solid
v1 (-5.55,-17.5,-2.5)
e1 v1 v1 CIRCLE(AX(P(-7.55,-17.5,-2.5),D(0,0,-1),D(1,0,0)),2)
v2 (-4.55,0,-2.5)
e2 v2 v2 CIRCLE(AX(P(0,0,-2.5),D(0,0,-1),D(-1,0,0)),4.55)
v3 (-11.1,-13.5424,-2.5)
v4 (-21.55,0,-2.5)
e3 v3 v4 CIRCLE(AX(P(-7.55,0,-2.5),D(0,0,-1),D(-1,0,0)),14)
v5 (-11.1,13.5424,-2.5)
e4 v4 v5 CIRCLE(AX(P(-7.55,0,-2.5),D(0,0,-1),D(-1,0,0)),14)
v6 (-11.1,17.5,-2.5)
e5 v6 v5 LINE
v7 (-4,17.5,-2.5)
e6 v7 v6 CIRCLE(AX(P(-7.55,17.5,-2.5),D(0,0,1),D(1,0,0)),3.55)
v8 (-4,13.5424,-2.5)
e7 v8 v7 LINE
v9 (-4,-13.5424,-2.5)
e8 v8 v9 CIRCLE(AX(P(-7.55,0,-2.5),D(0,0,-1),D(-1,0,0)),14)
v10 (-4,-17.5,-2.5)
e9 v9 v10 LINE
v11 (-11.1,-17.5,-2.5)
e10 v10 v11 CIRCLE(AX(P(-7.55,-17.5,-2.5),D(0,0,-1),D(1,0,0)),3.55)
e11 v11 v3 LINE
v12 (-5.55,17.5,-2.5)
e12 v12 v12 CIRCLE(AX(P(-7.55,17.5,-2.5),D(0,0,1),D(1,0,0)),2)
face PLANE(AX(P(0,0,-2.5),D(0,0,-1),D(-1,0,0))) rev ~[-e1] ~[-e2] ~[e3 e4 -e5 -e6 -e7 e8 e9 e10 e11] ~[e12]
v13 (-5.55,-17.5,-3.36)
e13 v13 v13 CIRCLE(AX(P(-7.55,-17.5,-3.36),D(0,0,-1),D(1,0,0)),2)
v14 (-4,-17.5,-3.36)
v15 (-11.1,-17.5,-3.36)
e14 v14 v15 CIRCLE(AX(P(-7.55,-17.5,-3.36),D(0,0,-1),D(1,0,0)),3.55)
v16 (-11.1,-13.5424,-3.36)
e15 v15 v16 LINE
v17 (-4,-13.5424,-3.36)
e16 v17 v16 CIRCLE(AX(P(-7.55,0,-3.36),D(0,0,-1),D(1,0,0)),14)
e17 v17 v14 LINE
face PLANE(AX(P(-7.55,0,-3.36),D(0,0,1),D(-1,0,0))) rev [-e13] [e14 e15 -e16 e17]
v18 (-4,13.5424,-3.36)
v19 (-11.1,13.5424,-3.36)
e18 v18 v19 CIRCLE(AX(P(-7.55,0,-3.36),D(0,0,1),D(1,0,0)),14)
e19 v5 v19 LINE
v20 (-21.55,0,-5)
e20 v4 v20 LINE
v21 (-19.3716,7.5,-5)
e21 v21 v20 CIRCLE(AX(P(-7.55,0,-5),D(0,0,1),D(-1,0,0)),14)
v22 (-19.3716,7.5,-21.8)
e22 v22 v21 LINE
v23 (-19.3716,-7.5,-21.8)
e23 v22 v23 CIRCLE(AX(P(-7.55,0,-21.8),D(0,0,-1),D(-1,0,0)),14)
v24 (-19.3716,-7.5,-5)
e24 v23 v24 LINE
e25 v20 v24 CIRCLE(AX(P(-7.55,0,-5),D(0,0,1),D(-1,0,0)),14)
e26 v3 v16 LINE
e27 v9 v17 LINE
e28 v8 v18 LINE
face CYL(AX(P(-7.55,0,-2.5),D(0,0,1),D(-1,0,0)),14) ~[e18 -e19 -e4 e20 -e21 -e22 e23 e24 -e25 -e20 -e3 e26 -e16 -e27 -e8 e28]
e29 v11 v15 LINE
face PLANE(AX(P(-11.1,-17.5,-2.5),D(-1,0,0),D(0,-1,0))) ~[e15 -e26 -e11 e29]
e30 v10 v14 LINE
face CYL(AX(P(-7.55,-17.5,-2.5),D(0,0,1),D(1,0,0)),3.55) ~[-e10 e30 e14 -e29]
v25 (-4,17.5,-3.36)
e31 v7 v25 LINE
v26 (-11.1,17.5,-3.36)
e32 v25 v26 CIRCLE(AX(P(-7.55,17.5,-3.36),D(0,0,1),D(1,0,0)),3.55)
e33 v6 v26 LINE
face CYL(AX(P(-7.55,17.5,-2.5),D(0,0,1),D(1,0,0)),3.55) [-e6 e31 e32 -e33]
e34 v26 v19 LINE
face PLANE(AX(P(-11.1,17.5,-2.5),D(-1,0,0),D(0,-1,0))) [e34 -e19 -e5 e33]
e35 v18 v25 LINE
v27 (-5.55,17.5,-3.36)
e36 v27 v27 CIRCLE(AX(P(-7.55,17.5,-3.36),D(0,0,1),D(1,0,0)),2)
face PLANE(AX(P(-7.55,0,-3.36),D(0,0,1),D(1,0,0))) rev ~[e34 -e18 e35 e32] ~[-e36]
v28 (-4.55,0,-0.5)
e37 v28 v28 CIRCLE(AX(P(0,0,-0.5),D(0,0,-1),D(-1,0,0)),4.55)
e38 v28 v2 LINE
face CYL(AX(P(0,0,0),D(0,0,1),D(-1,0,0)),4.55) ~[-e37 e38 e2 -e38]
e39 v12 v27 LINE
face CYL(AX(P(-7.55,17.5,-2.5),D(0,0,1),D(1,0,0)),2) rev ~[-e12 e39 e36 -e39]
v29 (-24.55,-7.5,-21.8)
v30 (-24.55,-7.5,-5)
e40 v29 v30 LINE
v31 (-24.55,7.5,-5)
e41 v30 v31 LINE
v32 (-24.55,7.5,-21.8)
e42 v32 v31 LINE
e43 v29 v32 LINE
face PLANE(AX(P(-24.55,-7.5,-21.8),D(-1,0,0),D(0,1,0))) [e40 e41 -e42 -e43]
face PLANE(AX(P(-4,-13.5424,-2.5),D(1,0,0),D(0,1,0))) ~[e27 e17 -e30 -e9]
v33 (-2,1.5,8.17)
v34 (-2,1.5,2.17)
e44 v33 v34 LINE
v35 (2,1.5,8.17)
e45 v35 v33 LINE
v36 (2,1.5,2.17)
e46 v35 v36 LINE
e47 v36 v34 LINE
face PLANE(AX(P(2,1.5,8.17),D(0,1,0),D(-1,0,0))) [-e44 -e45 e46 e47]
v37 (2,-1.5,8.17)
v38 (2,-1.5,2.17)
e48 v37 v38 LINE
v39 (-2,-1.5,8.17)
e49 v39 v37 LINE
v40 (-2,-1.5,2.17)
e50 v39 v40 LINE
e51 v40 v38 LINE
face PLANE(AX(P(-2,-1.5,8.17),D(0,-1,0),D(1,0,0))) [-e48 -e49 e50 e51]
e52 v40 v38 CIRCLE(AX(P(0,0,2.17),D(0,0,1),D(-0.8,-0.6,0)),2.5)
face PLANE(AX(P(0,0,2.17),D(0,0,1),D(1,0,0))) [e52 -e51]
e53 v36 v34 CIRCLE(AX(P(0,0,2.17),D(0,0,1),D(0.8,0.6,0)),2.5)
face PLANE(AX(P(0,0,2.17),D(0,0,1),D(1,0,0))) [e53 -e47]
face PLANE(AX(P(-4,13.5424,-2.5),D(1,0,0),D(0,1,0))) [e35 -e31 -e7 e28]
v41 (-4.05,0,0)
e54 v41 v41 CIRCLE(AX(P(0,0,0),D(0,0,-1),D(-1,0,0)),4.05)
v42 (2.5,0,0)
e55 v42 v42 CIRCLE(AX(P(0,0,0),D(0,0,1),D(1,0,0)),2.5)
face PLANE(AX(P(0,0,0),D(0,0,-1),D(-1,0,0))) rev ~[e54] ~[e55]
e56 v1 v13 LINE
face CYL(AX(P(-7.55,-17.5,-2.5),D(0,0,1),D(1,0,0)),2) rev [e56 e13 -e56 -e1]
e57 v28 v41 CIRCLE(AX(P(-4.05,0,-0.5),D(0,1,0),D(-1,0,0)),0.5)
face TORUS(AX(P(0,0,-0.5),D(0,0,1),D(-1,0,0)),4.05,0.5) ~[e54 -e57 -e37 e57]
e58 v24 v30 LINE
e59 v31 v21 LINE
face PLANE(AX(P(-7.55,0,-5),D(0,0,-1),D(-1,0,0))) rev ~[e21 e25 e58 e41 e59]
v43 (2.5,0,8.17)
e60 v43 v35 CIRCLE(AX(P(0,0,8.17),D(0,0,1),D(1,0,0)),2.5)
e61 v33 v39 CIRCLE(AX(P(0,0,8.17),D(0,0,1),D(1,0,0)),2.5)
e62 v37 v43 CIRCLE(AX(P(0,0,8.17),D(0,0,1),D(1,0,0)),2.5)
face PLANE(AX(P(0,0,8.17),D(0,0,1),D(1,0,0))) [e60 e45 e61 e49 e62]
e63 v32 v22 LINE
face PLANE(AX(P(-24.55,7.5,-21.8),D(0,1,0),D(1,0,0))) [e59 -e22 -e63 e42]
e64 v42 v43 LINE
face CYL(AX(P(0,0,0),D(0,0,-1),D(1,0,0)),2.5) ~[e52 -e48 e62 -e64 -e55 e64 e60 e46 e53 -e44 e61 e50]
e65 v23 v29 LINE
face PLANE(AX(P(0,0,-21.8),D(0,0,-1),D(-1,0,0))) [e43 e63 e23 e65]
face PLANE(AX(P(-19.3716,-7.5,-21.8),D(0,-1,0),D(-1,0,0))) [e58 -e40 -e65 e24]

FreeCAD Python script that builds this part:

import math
import FreeCAD as App
import Part
import Sketcher
Q = App.Units.Quantity


def edges_at(feature, points):
    """Names of the edges that pass closest to the given points."""
    edges = feature.Shape.Edges
    near = lambda p: min(range(len(edges)), key=lambda i: edges[i].distToShape(Part.Vertex(*p))[0])
    return sorted({f"Edge{near(p) + 1}" for p in points})


def add_polygon(sketch, points):
    """Adds a closed chain of lines whose ends are joined by coincident constraints."""
    first, n = sketch.GeometryCount, len(points)
    for a, b in zip(points, points[1:] + points[:1]):
        sketch.addGeometry(Part.LineSegment(App.Vector(*a, 0), App.Vector(*b, 0)), False)
    for i in range(n):
        sketch.addConstraint(Sketcher.Constraint("Coincident", first + i, 2, first + (i + 1) % n, 1))

doc = App.newDocument("Part")
body = doc.addObject("PartDesign::Body", "Body")

# Sketch on XY plane
sketch1 = doc.addObject("Sketcher::SketchObject", "Sketch")
body.addObject(sketch1)
sketch1.AttachmentSupport = (doc.XY_Plane, [""])
sketch1.MapMode = "FlatFace"
sketch1.addGeometry(Part.Circle(App.Vector(0, 0, 0), App.Vector(0, 0, 1), 2.5), False)
sketch1.addConstraint([
    Sketcher.Constraint("Coincident", 0, 3, -1, 1),
    Sketcher.Constraint("Diameter", 0, Q("5 mm")),
])
pad1 = doc.addObject("PartDesign::Pad", "Pad")
body.addObject(pad1)
pad1.Profile = sketch1
pad1.Length = 8.17

# Sketch on XY plane
sketch2 = doc.addObject("Sketcher::SketchObject", "Sketch001")
body.addObject(sketch2)
sketch2.AttachmentSupport = (doc.XY_Plane, [""])
sketch2.MapMode = "FlatFace"
sketch2.AttachmentOffset = App.Placement(App.Vector(0, 0, 8.17), App.Rotation())
sketch2.addGeometry([
    Part.LineSegment(App.Vector(2, -1.5, 0), App.Vector(-2, -1.5, 0)),
    Part.ArcOfCircle(Part.Circle(App.Vector(0, 0, 0), App.Vector(0, 0, 1), 2.5), math.radians(-143), math.radians(-37)),
    Part.ArcOfCircle(Part.Circle(App.Vector(0, 0, 0), App.Vector(0, 0, 1), 2.5), math.radians(37), math.radians(143)),
    Part.LineSegment(App.Vector(-2, 1.5, 0), App.Vector(2, 1.5, 0)),
], False)
sketch2.addConstraint([
    Sketcher.Constraint("Coincident", 0, 1, 1, 2),
    Sketcher.Constraint("Coincident", 1, 1, 0, 2),
    Sketcher.Constraint("Coincident", 2, 1, 3, 2),
    Sketcher.Constraint("Coincident", 3, 1, 2, 2),
    Sketcher.Constraint("Horizontal", 0),
    Sketcher.Constraint("Horizontal", 3),
    Sketcher.Constraint("Coincident", 1, 3, -1, 1),
    Sketcher.Constraint("Coincident", 2, 3, -1, 1),
    Sketcher.Constraint("Equal", 1, 2),
    Sketcher.Constraint("Vertical", 0, 1, 2, 1),
    Sketcher.Constraint("DistanceY", 0, 1, 2, 1, Q("3 mm")),
    Sketcher.Constraint("Radius", 1, Q("2.5 mm")),
])
pocket1 = doc.addObject("PartDesign::Pocket", "Pocket")
body.addObject(pocket1)
pocket1.Profile = sketch2
pocket1.Length = 6

# Sketch on XY plane
sketch3 = doc.addObject("Sketcher::SketchObject", "Sketch002")
body.addObject(sketch3)
sketch3.AttachmentSupport = (doc.XY_Plane, [""])
sketch3.MapMode = "FlatFace"
sketch3.addGeometry(Part.Circle(App.Vector(0, 0, 0), App.Vector(0, 0, 1), 4.5), False)
sketch3.addConstraint([
    Sketcher.Constraint("Coincident", 0, 3, -1, 1),
    Sketcher.Constraint("Diameter", 0, Q("9.1 mm")),
])
pad2 = doc.addObject("PartDesign::Pad", "Pad001")
body.addObject(pad2)
pad2.Profile = sketch3
pad2.Length = 2.5
pad2.Reversed = True

# Sketch on XY plane
sketch4 = doc.addObject("Sketcher::SketchObject", "Sketch003")
body.addObject(sketch4)
sketch4.AttachmentSupport = (doc.XY_Plane, [""])
sketch4.MapMode = "FlatFace"
sketch4.AttachmentOffset = App.Placement(App.Vector(0, 0, -2.5), App.Rotation())
sketch4.addGeometry(Part.Circle(App.Vector(-8, 0, 0), App.Vector(0, 0, 1), 14), False)
sketch4.addConstraint([
    Sketcher.Constraint("PointOnObject", 0, 3, -1),
    Sketcher.Constraint("Diameter", 0, Q("28 mm")),
    Sketcher.Constraint("DistanceX", 0, 3, -1, 1, Q("7.55 mm")),
])
pad3 = doc.addObject("PartDesign::Pad", "Pad002")
body.addObject(pad3)
pad3.Profile = sketch4
pad3.Length = 19.3
pad3.Reversed = True
doc.recompute()

fillet = doc.addObject("PartDesign::Fillet", "Fillet")
body.addObject(fillet)
fillet.Base = (pad3, edges_at(pad3, [(4.55, 0, 0)]))
fillet.Radius = 0.5

# Sketch on XY plane
sketch5 = doc.addObject("Sketcher::SketchObject", "Sketch004")
body.addObject(sketch5)
sketch5.AttachmentSupport = (doc.XY_Plane, [""])
sketch5.MapMode = "FlatFace"
sketch5.AttachmentOffset = App.Placement(App.Vector(0, 0, -21.8), App.Rotation())
add_polygon(sketch5, [(-19, 8), (-19, -8), (-25, -8), (-25, 8)])  # lines 0-3
sketch5.addConstraint([
    Sketcher.Constraint("Vertical", 0),
    Sketcher.Constraint("Horizontal", 1),
    Sketcher.Constraint("Vertical", 2),
    Sketcher.Constraint("Horizontal", 3),
    Sketcher.Constraint("DistanceY", 0, 2, 0, 1, Q("15 mm")),
    Sketcher.Constraint("DistanceY", 0, 2, -1, 1, Q("7.5 mm")),
    Sketcher.Constraint("DistanceX", 1, 2, -1, 1, Q("24.55 mm")),
    Sketcher.Constraint("DistanceX", 1, 2, 1, 1, Q("5.1784 mm")),
])
pad4 = doc.addObject("PartDesign::Pad", "Pad003")
body.addObject(pad4)
pad4.Profile = sketch5
pad4.Length = 16.8

# Sketch on XY plane
sketch6 = doc.addObject("Sketcher::SketchObject", "Sketch005")
body.addObject(sketch6)
sketch6.AttachmentSupport = (doc.XY_Plane, [""])
sketch6.MapMode = "FlatFace"
sketch6.AttachmentOffset = App.Placement(App.Vector(0, 0, -2.5), App.Rotation())
sketch6.addGeometry([
    Part.ArcOfCircle(Part.Circle(App.Vector(-7.5, 0, 0), App.Vector(0, 0, 1), 14), math.radians(75), math.radians(105)),  # 0
    Part.LineSegment(App.Vector(-4, 13.5, 0), App.Vector(-4, 17.5, 0)),  # 1
    Part.ArcOfCircle(Part.Circle(App.Vector(-7.5, 17.5, 0), App.Vector(0, 0, 1), 3.5), math.radians(0), math.radians(180)),  # 2
    Part.LineSegment(App.Vector(-11.1, 17.5, 0), App.Vector(-11.1, 13.5, 0)),  # 3
    Part.Circle(App.Vector(-7.5, 17.5, 0), App.Vector(0, 0, 1), 2),  # 4
], False)
sketch6.addConstraint([
    Sketcher.Constraint("Coincident", 0, 1, 1, 1),
    Sketcher.Constraint("Tangent", 1, 2, 2, 1),
    Sketcher.Constraint("Tangent", 2, 2, 3, 1),
    Sketcher.Constraint("Coincident", 3, 2, 0, 2),
    Sketcher.Constraint("Vertical", 1),
    Sketcher.Constraint("Vertical", 3),
    Sketcher.Constraint("Coincident", 4, 3, 2, 3),
    Sketcher.Constraint("PointOnObject", 0, 3, -1),
    Sketcher.Constraint("Horizontal", 0, 1, 3, 2),
    Sketcher.Constraint("Diameter", 4, Q("4 mm")),
    Sketcher.Constraint("Radius", 2, Q("3.55 mm")),
    Sketcher.Constraint("DistanceX", 0, 1, -1, 1, Q("4 mm")),
    Sketcher.Constraint("Radius", 0, Q("14 mm")),
    Sketcher.Constraint("DistanceY", -1, 1, 2, 3, Q("17.5 mm")),
])
pad5 = doc.addObject("PartDesign::Pad", "Pad004")
body.addObject(pad5)
pad5.Profile = sketch6
pad5.Length = 0.86
pad5.Reversed = True
doc.recompute()

mirrored = doc.addObject("PartDesign::Mirrored", "Mirrored")
body.addObject(mirrored)
mirrored.Originals = [pad5]
mirrored.MirrorPlane = (doc.XZ_Plane, [""])
body.Tip = mirrored

doc.recompute()
